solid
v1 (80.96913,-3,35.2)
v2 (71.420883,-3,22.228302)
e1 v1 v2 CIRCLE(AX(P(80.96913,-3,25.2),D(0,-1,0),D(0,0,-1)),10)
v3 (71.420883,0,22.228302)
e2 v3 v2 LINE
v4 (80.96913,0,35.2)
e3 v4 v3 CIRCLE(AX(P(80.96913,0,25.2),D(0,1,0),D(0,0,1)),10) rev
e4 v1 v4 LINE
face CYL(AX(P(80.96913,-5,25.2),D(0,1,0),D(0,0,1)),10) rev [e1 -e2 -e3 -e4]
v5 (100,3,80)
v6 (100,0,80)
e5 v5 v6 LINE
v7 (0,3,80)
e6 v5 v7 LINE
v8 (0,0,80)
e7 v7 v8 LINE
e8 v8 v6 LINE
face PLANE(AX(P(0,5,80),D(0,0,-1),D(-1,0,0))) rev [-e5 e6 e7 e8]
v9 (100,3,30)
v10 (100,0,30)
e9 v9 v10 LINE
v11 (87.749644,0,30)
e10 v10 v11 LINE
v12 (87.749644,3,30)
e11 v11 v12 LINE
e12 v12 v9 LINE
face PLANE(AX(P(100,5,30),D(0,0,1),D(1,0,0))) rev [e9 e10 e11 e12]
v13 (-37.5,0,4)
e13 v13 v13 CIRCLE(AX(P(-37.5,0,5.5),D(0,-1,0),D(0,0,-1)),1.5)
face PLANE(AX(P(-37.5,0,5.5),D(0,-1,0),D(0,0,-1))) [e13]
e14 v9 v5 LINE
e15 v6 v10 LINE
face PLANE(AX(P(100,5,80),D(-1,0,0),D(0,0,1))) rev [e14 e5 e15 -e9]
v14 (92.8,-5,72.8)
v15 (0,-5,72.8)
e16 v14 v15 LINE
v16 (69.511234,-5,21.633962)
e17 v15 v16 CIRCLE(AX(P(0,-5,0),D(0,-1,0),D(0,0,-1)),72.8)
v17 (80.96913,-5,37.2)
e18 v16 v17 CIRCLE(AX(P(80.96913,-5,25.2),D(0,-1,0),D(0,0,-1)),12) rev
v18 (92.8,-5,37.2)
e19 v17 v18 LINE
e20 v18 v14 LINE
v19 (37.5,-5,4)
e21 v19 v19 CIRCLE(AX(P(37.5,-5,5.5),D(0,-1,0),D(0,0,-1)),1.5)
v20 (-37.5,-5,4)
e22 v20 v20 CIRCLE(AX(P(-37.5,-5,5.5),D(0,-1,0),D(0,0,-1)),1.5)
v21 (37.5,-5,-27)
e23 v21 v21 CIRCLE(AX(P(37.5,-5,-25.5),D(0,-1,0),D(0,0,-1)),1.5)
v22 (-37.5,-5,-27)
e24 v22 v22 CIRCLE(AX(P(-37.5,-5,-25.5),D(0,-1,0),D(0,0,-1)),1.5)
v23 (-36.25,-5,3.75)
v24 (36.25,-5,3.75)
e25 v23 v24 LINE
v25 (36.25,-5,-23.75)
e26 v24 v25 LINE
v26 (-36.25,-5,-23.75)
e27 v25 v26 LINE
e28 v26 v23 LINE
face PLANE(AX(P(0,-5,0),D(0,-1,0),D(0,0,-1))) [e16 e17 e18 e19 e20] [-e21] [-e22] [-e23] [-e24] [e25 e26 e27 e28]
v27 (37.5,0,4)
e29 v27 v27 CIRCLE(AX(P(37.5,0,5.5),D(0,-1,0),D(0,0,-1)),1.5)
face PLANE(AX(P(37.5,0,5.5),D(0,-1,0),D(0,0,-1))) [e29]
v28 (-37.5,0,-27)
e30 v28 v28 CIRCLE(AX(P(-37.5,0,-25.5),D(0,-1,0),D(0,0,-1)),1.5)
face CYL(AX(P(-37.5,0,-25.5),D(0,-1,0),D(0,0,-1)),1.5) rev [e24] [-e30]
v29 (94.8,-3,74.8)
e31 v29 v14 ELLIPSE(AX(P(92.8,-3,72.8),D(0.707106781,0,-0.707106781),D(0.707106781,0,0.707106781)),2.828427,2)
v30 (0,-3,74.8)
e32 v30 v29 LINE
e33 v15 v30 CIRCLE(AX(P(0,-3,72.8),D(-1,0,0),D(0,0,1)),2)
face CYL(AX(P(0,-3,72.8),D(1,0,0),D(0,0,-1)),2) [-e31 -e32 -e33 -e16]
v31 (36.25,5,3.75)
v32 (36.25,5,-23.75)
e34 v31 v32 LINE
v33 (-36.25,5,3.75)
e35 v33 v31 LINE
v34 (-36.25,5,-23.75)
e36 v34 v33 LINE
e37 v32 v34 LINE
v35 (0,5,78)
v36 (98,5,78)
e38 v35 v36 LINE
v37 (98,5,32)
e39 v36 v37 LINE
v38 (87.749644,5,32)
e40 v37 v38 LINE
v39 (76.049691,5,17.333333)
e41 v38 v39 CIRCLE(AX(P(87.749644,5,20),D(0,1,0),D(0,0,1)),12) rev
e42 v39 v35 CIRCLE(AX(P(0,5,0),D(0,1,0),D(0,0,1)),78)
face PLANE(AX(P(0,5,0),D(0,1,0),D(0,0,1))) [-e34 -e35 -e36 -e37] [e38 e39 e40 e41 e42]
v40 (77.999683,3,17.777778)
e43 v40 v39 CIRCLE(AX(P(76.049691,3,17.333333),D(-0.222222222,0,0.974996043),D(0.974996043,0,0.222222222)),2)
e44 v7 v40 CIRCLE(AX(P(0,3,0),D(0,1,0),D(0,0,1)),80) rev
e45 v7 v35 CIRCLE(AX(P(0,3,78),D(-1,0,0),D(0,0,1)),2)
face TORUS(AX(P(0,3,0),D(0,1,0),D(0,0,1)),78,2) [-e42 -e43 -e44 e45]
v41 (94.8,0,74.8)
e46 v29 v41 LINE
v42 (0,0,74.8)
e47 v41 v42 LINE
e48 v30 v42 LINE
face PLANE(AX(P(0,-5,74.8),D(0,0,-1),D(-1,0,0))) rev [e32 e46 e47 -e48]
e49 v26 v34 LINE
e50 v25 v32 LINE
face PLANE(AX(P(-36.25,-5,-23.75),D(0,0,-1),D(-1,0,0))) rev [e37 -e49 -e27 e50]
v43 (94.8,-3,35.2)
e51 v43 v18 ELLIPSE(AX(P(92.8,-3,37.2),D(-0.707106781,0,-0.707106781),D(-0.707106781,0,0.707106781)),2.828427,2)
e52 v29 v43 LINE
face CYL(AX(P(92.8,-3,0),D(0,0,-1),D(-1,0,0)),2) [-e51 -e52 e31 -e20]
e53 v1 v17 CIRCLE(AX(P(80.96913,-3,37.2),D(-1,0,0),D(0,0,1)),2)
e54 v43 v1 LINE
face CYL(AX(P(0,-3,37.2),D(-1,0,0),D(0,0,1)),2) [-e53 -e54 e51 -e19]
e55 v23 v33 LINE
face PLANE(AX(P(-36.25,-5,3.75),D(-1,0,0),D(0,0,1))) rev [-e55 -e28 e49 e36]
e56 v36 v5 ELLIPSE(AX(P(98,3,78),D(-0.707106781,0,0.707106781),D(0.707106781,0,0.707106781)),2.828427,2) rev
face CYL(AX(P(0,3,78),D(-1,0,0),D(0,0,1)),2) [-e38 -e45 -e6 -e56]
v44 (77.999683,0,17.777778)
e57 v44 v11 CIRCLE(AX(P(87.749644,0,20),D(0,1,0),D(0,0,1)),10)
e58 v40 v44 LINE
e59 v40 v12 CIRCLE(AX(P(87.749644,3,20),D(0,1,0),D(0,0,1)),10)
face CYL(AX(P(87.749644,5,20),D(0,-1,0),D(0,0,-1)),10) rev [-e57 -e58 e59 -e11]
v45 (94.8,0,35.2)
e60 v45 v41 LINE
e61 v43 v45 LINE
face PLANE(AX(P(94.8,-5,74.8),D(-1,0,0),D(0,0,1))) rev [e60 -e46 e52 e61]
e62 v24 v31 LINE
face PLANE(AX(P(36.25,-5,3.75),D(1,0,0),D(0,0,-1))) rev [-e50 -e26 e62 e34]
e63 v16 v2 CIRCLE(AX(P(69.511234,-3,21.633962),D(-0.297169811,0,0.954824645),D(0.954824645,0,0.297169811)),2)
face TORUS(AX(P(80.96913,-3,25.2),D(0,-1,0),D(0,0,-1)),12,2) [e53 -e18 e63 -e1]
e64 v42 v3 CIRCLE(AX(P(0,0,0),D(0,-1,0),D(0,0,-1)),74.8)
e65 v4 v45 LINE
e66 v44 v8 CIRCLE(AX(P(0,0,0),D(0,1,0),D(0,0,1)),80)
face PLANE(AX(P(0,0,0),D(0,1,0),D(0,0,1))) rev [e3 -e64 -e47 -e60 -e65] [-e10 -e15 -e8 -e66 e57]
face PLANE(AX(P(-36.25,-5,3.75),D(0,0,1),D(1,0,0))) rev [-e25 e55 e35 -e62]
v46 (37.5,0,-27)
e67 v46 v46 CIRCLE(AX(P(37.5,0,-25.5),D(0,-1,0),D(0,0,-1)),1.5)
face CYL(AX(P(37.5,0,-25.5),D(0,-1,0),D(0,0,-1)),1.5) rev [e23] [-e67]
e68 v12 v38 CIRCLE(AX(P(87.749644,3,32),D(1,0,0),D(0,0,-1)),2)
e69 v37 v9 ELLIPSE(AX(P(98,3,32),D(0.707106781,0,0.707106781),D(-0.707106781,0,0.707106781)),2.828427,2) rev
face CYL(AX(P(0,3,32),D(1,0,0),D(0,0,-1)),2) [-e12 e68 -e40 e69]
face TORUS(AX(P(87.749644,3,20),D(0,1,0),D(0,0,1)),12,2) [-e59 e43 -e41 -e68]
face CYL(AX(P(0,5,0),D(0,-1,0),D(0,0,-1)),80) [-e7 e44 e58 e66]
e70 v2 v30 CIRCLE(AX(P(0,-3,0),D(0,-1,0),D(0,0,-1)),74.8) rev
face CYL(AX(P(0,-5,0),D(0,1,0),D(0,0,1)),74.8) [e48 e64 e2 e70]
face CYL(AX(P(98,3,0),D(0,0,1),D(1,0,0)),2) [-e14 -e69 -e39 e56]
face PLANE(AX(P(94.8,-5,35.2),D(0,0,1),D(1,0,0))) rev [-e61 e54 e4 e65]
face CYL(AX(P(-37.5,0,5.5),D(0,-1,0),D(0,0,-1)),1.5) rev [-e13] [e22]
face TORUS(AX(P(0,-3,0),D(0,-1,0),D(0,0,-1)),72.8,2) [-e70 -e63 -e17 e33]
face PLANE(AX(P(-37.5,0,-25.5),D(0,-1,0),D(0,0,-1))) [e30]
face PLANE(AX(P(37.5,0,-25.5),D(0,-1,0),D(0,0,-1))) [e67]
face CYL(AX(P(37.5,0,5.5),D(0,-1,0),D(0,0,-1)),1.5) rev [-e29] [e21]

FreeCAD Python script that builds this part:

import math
import FreeCAD as App
import Part
import Sketcher

V = App.Vector


def edges_at(feature, points):
    """Names of the edges that pass closest to the given points."""
    edges = feature.Shape.Edges
    near = lambda p: min(range(len(edges)), key=lambda i: edges[i].distToShape(Part.Vertex(*p))[0])
    return sorted({f"Edge{near(p) + 1}" for p in points})


def add_polygon(sketch, points):
    """Adds a closed chain of lines whose ends are joined by coincident constraints."""
    first, n = sketch.GeometryCount, len(points)
    for a, b in zip(points, points[1:] + points[:1]):
        sketch.addGeometry(Part.LineSegment(App.Vector(*a, 0), App.Vector(*b, 0)), False)
    for i in range(n):
        sketch.addConstraint(Sketcher.Constraint("Coincident", first + i, 2, first + (i + 1) % n, 1))

doc = App.newDocument("Part")
body = doc.addObject("PartDesign::Body", "Body")

# Sketch on XZ plane
sketch1 = body.newObject("Sketcher::SketchObject", "Sketch")
sketch1.AttachmentSupport = (doc.getObject("XZ_Plane"), [""])
sketch1.MapMode = "FlatFace"
sketch1.addGeometry([
    Part.LineSegment(V(0, 80, 0), V(100, 80, 0)),
    Part.LineSegment(V(100, 80, 0), V(100, 30, 0)),
    Part.LineSegment(V(100, 30, 0), V(74, 30, 0)),
    Part.ArcOfCircle(Part.Circle(V(0, 0, 0), V(0, 0, 1), 80), math.radians(90), math.radians(382)),
], False)
sketch1.addConstraint([
    Sketcher.Constraint("Coincident", 0, 2, 1, 1),
    Sketcher.Constraint("Coincident", 1, 2, 2, 1),
    Sketcher.Constraint("Coincident", 2, 2, 3, 2),
    Sketcher.Constraint("Tangent", 3, 1, 0, 1),
    Sketcher.Constraint("Horizontal", 0),
    Sketcher.Constraint("Vertical", 1),
    Sketcher.Constraint("Horizontal", 2),
    Sketcher.Constraint("Coincident", 3, 3, -1, 1),
    Sketcher.Constraint("Radius", 3, 80.0),
    Sketcher.Constraint("DistanceX", 0, 1, 0, 2, 100.0),
    Sketcher.Constraint("DistanceY", 1, 2, 1, 1, 50.0),
])
pad1 = body.newObject("PartDesign::Pad", "Pad")
pad1.Profile = sketch1
pad1.Length = 5
pad1.Reversed = True

# Sketch on XZ plane
sketch2 = body.newObject("Sketcher::SketchObject", "Sketch001")
sketch2.AttachmentSupport = (doc.getObject("XZ_Plane"), [""])
sketch2.MapMode = "FlatFace"
sketch2.addGeometry([
    Part.LineSegment(V(95, 75, 0), V(0, 75, 0)),
    Part.ArcOfCircle(Part.Circle(V(0, 0, 0), V(0, 0, 1), 75), math.radians(90), math.radians(388)),
    Part.LineSegment(V(66, 35, 0), V(95, 35, 0)),
    Part.LineSegment(V(95, 35, 0), V(95, 75, 0)),
], False)
sketch2.addConstraint([
    Sketcher.Constraint("Tangent", 0, 2, 1, 1),
    Sketcher.Constraint("Coincident", 1, 2, 2, 1),
    Sketcher.Constraint("Coincident", 2, 2, 3, 1),
    Sketcher.Constraint("Coincident", 3, 2, 0, 1),
    Sketcher.Constraint("Horizontal", 0),
    Sketcher.Constraint("Horizontal", 2),
    Sketcher.Constraint("Vertical", 3),
    Sketcher.Constraint("Coincident", 1, 3, -1, 1),
    Sketcher.Constraint("Radius", 1, 74.8),
    Sketcher.Constraint("DistanceX", 0, 2, 0, 1, 94.8),
    Sketcher.Constraint("DistanceX", 2, 1, 2, 2, 28.8),
])
pad2 = body.newObject("PartDesign::Pad", "Pad001")
pad2.Profile = sketch2
pad2.Length = 5

# Sketch on XZ plane
sketch3 = body.newObject("Sketcher::SketchObject", "Sketch002")
sketch3.AttachmentSupport = (doc.getObject("XZ_Plane"), [""])
sketch3.MapMode = "FlatFace"
sketch3.AttachmentOffset = App.Placement(V(0, 0, -5), App.Rotation())
add_polygon(sketch3, [(-36, -24), (-36, 4), (36, 4), (36, -24)])  # lines 0-3
sketch3.addConstraint([
    Sketcher.Constraint("Vertical", 0),
    Sketcher.Constraint("Horizontal", 1),
    Sketcher.Constraint("Vertical", 2),
    Sketcher.Constraint("Horizontal", 3),
    Sketcher.Constraint("DistanceX", 1, 1, 1, 2, 72.5),
    Sketcher.Constraint("DistanceY", 0, 1, 0, 2, 27.5),
    Sketcher.Constraint("DistanceX", 0, 2, -1, 1, 36.25),
    Sketcher.Constraint("DistanceY", -1, 1, 0, 2, 3.75),
])
pocket1 = body.newObject("PartDesign::Pocket", "Pocket")
pocket1.Profile = sketch3
pocket1.Type = "ThroughAll"
pocket1.Reversed = True

# Sketch on XZ plane
sketch4 = body.newObject("Sketcher::SketchObject", "Sketch003")
sketch4.AttachmentSupport = (doc.getObject("XZ_Plane"), [""])
sketch4.MapMode = "FlatFace"
sketch4.AttachmentOffset = App.Placement(V(0, 0, 5), App.Rotation())
sketch4.addGeometry([
    Part.Circle(V(-37.5, 5.5, 0), V(0, 0, 1), 1.5),
    Part.Circle(V(37.5, 5.5, 0), V(0, 0, 1), 1.5),
    Part.Circle(V(37.5, -25.5, 0), V(0, 0, 1), 1.5),
    Part.Circle(V(-37.5, -25.5, 0), V(0, 0, 1), 1.5),
], False)
sketch4.addConstraint([
    Sketcher.Constraint("Equal", 0, 1),
    Sketcher.Constraint("Equal", 1, 2),
    Sketcher.Constraint("Equal", 2, 3),
    Sketcher.Constraint("Symmetric", 0, 3, 1, 3, -2),
    Sketcher.Constraint("Symmetric", 2, 3, 3, 3, -2),
    Sketcher.Constraint("Vertical", 1, 3, 2, 3),
    Sketcher.Constraint("Diameter", 0, 3.0),
    Sketcher.Constraint("DistanceX", 0, 3, 1, 3, 75.0),
    Sketcher.Constraint("DistanceY", 2, 3, 1, 3, 31.0),
    Sketcher.Constraint("DistanceY", -1, 1, 0, 3, 5.5),
])
pocket2 = body.newObject("PartDesign::Pocket", "Pocket001")
pocket2.Profile = sketch4
pocket2.Length = 5
doc.recompute()

fillet = body.newObject("PartDesign::Fillet", "Fillet")
fillet.Base = (pocket2, edges_at(pocket2, [(66, -2.5, 35.2), (74.162, 2.5, 30)]))
fillet.Radius = 10
doc.recompute()

fillet2 = body.newObject("PartDesign::Fillet", "Fillet001")
fillet2.Base = (fillet, edges_at(fillet, [
    (100, 5, 55),
    (93.875, 5, 30),
    (-49.889, 5, -62.539),
    (79.932, 5, 26.236),
    (50, 5, 80),
]))
fillet2.Radius = 2
doc.recompute()

fillet3 = body.newObject("PartDesign::Fillet", "Fillet002")
fillet3.Base = (fillet2, edges_at(fillet2, [
    (-44.342, -5, -60.24),
    (94.8, -5, 55),
    (47.4, -5, 74.8),
    (87.885, -5, 35.2),
    (72.916, -5, 31.128),
]))
fillet3.Radius = 2

doc.recompute()
